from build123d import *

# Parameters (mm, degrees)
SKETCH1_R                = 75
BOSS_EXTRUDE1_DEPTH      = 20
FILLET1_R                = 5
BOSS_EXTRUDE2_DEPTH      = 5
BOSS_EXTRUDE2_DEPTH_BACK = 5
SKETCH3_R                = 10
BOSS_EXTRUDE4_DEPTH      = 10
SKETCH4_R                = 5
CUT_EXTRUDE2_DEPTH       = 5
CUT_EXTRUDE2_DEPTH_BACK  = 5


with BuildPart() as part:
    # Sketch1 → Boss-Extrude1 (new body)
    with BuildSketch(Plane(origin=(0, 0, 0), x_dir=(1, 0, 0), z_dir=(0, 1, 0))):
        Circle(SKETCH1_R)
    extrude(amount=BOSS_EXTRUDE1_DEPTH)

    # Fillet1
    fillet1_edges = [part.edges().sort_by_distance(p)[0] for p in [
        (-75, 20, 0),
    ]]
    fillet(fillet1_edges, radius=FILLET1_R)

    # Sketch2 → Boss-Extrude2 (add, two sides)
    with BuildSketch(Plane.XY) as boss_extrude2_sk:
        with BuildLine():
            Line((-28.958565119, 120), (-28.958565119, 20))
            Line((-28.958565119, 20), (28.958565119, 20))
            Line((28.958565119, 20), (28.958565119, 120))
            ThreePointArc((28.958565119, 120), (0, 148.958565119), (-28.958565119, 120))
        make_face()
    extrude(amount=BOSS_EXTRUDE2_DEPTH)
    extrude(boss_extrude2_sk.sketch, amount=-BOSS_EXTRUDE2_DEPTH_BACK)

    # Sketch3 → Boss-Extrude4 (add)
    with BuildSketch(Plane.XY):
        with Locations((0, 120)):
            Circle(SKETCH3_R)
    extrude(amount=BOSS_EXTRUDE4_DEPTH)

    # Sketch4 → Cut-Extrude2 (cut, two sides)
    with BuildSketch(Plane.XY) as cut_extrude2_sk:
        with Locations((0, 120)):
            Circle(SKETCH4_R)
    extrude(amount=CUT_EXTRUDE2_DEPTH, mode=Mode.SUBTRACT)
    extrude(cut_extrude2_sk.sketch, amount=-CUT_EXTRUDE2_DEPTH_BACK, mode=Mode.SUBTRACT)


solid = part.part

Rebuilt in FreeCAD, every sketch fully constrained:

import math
import FreeCAD as App
import Part
import Sketcher

V = App.Vector
Q = App.Units.Quantity


def edges_at(feature, points):
    """Names of the edges that pass closest to the given points."""
    edges = feature.Shape.Edges
    near = lambda p: min(range(len(edges)), key=lambda i: edges[i].distToShape(Part.Vertex(*p))[0])
    return sorted({f"Edge{near(p) + 1}" for p in points})

doc = App.newDocument("Part")
body = doc.addObject("PartDesign::Body", "Body")

sketch1 = body.newObject("Sketcher::SketchObject", "Sketch")
sketch1.AttachmentSupport = (doc.getObject("XZ_Plane"), [""])
sketch1.MapMode = "FlatFace"
sketch1.addGeometry(Part.Circle(V(0, 0, 0), V(0, 0, 1), 75), False)
sketch1.addConstraint([
    Sketcher.Constraint("Coincident", 0, 3, -1, 1),
    Sketcher.Constraint("Diameter", 0, Q("150 mm")),
])
pad1 = body.newObject("PartDesign::Pad", "Pad")
pad1.Profile = sketch1
pad1.Length = 20
pad1.Reversed = True
doc.recompute()

fillet = body.newObject("PartDesign::Fillet", "Fillet")
fillet.Base = (pad1, edges_at(pad1, [(-75, 20, 0)]))
fillet.Radius = 5

sketch2 = body.newObject("Sketcher::SketchObject", "Sketch001")
sketch2.AttachmentSupport = (doc.getObject("XY_Plane"), [""])
sketch2.MapMode = "FlatFace"
sketch2.addGeometry([
    Part.LineSegment(V(-29, 120, 0), V(-29, 20, 0)),
    Part.LineSegment(V(-29, 20, 0), V(29, 20, 0)),
    Part.LineSegment(V(29, 20, 0), V(29, 120, 0)),
    Part.ArcOfCircle(Part.Circle(V(0, 120, 0), V(0, 0, 1), 29), math.radians(0), math.radians(180)),
], False)
sketch2.addConstraint([
    Sketcher.Constraint("Coincident", 0, 2, 1, 1),
    Sketcher.Constraint("Coincident", 1, 2, 2, 1),
    Sketcher.Constraint("Tangent", 2, 2, 3, 1),
    Sketcher.Constraint("Tangent", 3, 2, 0, 1),
    Sketcher.Constraint("Vertical", 0),
    Sketcher.Constraint("Horizontal", 1),
    Sketcher.Constraint("Vertical", 2),
    Sketcher.Constraint("PointOnObject", 3, 3, -2),
    Sketcher.Constraint("DistanceY", 0, 2, 0, 1, Q("100 mm")),
    Sketcher.Constraint("DistanceY", -1, 1, 3, 3, Q("120 mm")),
    Sketcher.Constraint("Radius", 3, Q("28.958565 mm")),
])
pad2 = body.newObject("PartDesign::Pad", "Pad001")
pad2.Profile = sketch2
pad2.Type = "TwoLengths"
pad2.Length = 5
pad2.Length2 = 5

sketch3 = body.newObject("Sketcher::SketchObject", "Sketch002")
sketch3.AttachmentSupport = (doc.getObject("XY_Plane"), [""])
sketch3.MapMode = "FlatFace"
sketch3.addGeometry(Part.Circle(V(0, 120, 0), V(0, 0, 1), 10), False)
sketch3.addConstraint([
    Sketcher.Constraint("PointOnObject", 0, 3, -2),
    Sketcher.Constraint("Diameter", 0, Q("20 mm")),
    Sketcher.Constraint("DistanceY", -1, 1, 0, 3, Q("120 mm")),
])
pad3 = body.newObject("PartDesign::Pad", "Pad002")
pad3.Profile = sketch3
pad3.Length = 10

sketch4 = body.newObject("Sketcher::SketchObject", "Sketch003")
sketch4.AttachmentSupport = (doc.getObject("XY_Plane"), [""])
sketch4.MapMode = "FlatFace"
sketch4.addGeometry(Part.Circle(V(0, 120, 0), V(0, 0, 1), 5), False)
sketch4.addConstraint([
    Sketcher.Constraint("PointOnObject", 0, 3, -2),
    Sketcher.Constraint("Diameter", 0, Q("10 mm")),
    Sketcher.Constraint("DistanceY", -1, 1, 0, 3, Q("120 mm")),
])
pocket1 = body.newObject("PartDesign::Pocket", "Pocket")
pocket1.Profile = sketch4
pocket1.Type = "TwoLengths"
pocket1.Length = 5
pocket1.Length2 = 5
pocket1.Reversed = True

doc.recompute()
